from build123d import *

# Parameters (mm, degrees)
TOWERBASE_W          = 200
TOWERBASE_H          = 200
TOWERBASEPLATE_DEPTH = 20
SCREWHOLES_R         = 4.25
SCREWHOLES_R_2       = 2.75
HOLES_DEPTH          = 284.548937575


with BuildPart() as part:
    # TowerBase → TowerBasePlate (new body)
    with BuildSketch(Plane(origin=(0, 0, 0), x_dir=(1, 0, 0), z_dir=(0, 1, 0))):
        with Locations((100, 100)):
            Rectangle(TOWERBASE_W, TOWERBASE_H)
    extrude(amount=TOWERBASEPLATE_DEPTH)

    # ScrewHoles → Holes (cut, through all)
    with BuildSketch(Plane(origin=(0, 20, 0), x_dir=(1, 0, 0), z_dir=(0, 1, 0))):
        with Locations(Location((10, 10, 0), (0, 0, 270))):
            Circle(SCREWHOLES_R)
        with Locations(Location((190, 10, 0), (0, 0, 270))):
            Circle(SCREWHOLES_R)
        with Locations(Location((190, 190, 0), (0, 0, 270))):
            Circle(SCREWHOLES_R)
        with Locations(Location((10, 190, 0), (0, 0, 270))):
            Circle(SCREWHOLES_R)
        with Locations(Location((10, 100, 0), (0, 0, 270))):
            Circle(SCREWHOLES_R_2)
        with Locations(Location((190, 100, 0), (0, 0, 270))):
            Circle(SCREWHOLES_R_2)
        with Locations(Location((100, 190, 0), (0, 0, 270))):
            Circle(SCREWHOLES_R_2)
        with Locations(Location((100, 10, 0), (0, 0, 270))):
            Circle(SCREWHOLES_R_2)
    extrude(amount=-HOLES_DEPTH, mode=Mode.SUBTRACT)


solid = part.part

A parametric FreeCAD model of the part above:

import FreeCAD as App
import Part
import Sketcher
from FreeCAD import Vector
Q = App.Units.Quantity

doc = App.newDocument("Part")
body = doc.addObject("PartDesign::Body", "Body")

# Sketch on XZ plane
sketch1 = body.newObject("Sketcher::SketchObject", "Sketch")
sketch1.AttachmentSupport = (doc.getObject("XZ_Plane"), [""])
sketch1.MapMode = "FlatFace"
sketch1.addGeometry([
    Part.LineSegment(Vector(0, -200, 0), Vector(0, 0, 0)),
    Part.LineSegment(Vector(0, 0, 0), Vector(200, 0, 0)),
    Part.LineSegment(Vector(200, 0, 0), Vector(200, -200, 0)),
    Part.LineSegment(Vector(200, -200, 0), Vector(0, -200, 0)),
], False)
sketch1.addConstraint([
    Sketcher.Constraint("Coincident", 0, 2, 1, 1),
    Sketcher.Constraint("Coincident", 1, 2, 2, 1),
    Sketcher.Constraint("Coincident", 2, 2, 3, 1),
    Sketcher.Constraint("Coincident", 3, 2, 0, 1),
    Sketcher.Constraint("Vertical", 0),
    Sketcher.Constraint("Horizontal", 1),
    Sketcher.Constraint("Vertical", 2),
    Sketcher.Constraint("Horizontal", 3),
    Sketcher.Constraint("Coincident", 0, 2, -1, 1),
    Sketcher.Constraint("Equal", 3, 0),
    Sketcher.Constraint("DistanceX", 1, 1, 1, 2, Q("200 mm")),
])
pad1 = body.newObject("PartDesign::Pad", "Pad")
pad1.Profile = sketch1
pad1.Length = 20
pad1.Reversed = True

# Sketch on XZ plane
sketch2 = body.newObject("Sketcher::SketchObject", "Sketch001")
sketch2.AttachmentSupport = (doc.getObject("XZ_Plane"), [""])
sketch2.MapMode = "FlatFace"
sketch2.AttachmentOffset = App.Placement(Vector(0, 0, -20), App.Rotation())
sketch2.addGeometry([
    Part.Circle(Vector(10, -10, 0), Vector(0, 0, 1), 4.2),  # 0
    Part.Circle(Vector(190, -10, 0), Vector(0, 0, 1), 4.2),  # 1
    Part.Circle(Vector(190, -190, 0), Vector(0, 0, 1), 4.2),  # 2
    Part.Circle(Vector(10, -190, 0), Vector(0, 0, 1), 4.2),  # 3
    Part.Circle(Vector(10, -100, 0), Vector(0, 0, 1), 2.8),  # 4
    Part.Circle(Vector(190, -100, 0), Vector(0, 0, 1), 2.8),  # 5
    Part.Circle(Vector(100, -190, 0), Vector(0, 0, 1), 2.8),  # 6
    Part.Circle(Vector(100, -10, 0), Vector(0, 0, 1), 2.8),  # 7
], False)
sketch2.addConstraint([
    Sketcher.Constraint("Equal", 0, 1),
    Sketcher.Constraint("Equal", 1, 2),
    Sketcher.Constraint("Equal", 2, 3),
    Sketcher.Constraint("Equal", 4, 5),
    Sketcher.Constraint("Equal", 5, 6),
    Sketcher.Constraint("Equal", 6, 7),
    Sketcher.Constraint("Horizontal", 0, 3, 1, 3),
    Sketcher.Constraint("Horizontal", 2, 3, 3, 3),
    Sketcher.Constraint("Horizontal", 4, 3, 5, 3),
    Sketcher.Constraint("Horizontal", 3, 3, 6, 3),
    Sketcher.Constraint("Horizontal", 1, 3, 7, 3),
    Sketcher.Constraint("Vertical", 1, 3, 2, 3),
    Sketcher.Constraint("Vertical", 0, 3, 3, 3),
    Sketcher.Constraint("Vertical", 3, 3, 4, 3),
    Sketcher.Constraint("Vertical", 2, 3, 5, 3),
    Sketcher.Constraint("Vertical", 6, 3, 7, 3),
    Sketcher.Constraint("Diameter", 0, Q("8.5 mm")),
    Sketcher.Constraint("Diameter", 4, Q("5.5 mm")),
    Sketcher.Constraint("DistanceX", -1, 1, 0, 3, Q("10 mm")),
    Sketcher.Constraint("DistanceY", 0, 3, -1, 1, Q("10 mm")),
    Sketcher.Constraint("DistanceX", -1, 1, 1, 3, Q("190 mm")),
    Sketcher.Constraint("DistanceY", 2, 3, -1, 1, Q("190 mm")),
    Sketcher.Constraint("DistanceY", 4, 3, -1, 1, Q("100 mm")),
    Sketcher.Constraint("DistanceX", -1, 1, 6, 3, Q("100 mm")),
])
pocket1 = body.newObject("PartDesign::Pocket", "Pocket")
pocket1.Profile = sketch2
pocket1.Type = "ThroughAll"
pocket1.Reversed = True

doc.recompute()
